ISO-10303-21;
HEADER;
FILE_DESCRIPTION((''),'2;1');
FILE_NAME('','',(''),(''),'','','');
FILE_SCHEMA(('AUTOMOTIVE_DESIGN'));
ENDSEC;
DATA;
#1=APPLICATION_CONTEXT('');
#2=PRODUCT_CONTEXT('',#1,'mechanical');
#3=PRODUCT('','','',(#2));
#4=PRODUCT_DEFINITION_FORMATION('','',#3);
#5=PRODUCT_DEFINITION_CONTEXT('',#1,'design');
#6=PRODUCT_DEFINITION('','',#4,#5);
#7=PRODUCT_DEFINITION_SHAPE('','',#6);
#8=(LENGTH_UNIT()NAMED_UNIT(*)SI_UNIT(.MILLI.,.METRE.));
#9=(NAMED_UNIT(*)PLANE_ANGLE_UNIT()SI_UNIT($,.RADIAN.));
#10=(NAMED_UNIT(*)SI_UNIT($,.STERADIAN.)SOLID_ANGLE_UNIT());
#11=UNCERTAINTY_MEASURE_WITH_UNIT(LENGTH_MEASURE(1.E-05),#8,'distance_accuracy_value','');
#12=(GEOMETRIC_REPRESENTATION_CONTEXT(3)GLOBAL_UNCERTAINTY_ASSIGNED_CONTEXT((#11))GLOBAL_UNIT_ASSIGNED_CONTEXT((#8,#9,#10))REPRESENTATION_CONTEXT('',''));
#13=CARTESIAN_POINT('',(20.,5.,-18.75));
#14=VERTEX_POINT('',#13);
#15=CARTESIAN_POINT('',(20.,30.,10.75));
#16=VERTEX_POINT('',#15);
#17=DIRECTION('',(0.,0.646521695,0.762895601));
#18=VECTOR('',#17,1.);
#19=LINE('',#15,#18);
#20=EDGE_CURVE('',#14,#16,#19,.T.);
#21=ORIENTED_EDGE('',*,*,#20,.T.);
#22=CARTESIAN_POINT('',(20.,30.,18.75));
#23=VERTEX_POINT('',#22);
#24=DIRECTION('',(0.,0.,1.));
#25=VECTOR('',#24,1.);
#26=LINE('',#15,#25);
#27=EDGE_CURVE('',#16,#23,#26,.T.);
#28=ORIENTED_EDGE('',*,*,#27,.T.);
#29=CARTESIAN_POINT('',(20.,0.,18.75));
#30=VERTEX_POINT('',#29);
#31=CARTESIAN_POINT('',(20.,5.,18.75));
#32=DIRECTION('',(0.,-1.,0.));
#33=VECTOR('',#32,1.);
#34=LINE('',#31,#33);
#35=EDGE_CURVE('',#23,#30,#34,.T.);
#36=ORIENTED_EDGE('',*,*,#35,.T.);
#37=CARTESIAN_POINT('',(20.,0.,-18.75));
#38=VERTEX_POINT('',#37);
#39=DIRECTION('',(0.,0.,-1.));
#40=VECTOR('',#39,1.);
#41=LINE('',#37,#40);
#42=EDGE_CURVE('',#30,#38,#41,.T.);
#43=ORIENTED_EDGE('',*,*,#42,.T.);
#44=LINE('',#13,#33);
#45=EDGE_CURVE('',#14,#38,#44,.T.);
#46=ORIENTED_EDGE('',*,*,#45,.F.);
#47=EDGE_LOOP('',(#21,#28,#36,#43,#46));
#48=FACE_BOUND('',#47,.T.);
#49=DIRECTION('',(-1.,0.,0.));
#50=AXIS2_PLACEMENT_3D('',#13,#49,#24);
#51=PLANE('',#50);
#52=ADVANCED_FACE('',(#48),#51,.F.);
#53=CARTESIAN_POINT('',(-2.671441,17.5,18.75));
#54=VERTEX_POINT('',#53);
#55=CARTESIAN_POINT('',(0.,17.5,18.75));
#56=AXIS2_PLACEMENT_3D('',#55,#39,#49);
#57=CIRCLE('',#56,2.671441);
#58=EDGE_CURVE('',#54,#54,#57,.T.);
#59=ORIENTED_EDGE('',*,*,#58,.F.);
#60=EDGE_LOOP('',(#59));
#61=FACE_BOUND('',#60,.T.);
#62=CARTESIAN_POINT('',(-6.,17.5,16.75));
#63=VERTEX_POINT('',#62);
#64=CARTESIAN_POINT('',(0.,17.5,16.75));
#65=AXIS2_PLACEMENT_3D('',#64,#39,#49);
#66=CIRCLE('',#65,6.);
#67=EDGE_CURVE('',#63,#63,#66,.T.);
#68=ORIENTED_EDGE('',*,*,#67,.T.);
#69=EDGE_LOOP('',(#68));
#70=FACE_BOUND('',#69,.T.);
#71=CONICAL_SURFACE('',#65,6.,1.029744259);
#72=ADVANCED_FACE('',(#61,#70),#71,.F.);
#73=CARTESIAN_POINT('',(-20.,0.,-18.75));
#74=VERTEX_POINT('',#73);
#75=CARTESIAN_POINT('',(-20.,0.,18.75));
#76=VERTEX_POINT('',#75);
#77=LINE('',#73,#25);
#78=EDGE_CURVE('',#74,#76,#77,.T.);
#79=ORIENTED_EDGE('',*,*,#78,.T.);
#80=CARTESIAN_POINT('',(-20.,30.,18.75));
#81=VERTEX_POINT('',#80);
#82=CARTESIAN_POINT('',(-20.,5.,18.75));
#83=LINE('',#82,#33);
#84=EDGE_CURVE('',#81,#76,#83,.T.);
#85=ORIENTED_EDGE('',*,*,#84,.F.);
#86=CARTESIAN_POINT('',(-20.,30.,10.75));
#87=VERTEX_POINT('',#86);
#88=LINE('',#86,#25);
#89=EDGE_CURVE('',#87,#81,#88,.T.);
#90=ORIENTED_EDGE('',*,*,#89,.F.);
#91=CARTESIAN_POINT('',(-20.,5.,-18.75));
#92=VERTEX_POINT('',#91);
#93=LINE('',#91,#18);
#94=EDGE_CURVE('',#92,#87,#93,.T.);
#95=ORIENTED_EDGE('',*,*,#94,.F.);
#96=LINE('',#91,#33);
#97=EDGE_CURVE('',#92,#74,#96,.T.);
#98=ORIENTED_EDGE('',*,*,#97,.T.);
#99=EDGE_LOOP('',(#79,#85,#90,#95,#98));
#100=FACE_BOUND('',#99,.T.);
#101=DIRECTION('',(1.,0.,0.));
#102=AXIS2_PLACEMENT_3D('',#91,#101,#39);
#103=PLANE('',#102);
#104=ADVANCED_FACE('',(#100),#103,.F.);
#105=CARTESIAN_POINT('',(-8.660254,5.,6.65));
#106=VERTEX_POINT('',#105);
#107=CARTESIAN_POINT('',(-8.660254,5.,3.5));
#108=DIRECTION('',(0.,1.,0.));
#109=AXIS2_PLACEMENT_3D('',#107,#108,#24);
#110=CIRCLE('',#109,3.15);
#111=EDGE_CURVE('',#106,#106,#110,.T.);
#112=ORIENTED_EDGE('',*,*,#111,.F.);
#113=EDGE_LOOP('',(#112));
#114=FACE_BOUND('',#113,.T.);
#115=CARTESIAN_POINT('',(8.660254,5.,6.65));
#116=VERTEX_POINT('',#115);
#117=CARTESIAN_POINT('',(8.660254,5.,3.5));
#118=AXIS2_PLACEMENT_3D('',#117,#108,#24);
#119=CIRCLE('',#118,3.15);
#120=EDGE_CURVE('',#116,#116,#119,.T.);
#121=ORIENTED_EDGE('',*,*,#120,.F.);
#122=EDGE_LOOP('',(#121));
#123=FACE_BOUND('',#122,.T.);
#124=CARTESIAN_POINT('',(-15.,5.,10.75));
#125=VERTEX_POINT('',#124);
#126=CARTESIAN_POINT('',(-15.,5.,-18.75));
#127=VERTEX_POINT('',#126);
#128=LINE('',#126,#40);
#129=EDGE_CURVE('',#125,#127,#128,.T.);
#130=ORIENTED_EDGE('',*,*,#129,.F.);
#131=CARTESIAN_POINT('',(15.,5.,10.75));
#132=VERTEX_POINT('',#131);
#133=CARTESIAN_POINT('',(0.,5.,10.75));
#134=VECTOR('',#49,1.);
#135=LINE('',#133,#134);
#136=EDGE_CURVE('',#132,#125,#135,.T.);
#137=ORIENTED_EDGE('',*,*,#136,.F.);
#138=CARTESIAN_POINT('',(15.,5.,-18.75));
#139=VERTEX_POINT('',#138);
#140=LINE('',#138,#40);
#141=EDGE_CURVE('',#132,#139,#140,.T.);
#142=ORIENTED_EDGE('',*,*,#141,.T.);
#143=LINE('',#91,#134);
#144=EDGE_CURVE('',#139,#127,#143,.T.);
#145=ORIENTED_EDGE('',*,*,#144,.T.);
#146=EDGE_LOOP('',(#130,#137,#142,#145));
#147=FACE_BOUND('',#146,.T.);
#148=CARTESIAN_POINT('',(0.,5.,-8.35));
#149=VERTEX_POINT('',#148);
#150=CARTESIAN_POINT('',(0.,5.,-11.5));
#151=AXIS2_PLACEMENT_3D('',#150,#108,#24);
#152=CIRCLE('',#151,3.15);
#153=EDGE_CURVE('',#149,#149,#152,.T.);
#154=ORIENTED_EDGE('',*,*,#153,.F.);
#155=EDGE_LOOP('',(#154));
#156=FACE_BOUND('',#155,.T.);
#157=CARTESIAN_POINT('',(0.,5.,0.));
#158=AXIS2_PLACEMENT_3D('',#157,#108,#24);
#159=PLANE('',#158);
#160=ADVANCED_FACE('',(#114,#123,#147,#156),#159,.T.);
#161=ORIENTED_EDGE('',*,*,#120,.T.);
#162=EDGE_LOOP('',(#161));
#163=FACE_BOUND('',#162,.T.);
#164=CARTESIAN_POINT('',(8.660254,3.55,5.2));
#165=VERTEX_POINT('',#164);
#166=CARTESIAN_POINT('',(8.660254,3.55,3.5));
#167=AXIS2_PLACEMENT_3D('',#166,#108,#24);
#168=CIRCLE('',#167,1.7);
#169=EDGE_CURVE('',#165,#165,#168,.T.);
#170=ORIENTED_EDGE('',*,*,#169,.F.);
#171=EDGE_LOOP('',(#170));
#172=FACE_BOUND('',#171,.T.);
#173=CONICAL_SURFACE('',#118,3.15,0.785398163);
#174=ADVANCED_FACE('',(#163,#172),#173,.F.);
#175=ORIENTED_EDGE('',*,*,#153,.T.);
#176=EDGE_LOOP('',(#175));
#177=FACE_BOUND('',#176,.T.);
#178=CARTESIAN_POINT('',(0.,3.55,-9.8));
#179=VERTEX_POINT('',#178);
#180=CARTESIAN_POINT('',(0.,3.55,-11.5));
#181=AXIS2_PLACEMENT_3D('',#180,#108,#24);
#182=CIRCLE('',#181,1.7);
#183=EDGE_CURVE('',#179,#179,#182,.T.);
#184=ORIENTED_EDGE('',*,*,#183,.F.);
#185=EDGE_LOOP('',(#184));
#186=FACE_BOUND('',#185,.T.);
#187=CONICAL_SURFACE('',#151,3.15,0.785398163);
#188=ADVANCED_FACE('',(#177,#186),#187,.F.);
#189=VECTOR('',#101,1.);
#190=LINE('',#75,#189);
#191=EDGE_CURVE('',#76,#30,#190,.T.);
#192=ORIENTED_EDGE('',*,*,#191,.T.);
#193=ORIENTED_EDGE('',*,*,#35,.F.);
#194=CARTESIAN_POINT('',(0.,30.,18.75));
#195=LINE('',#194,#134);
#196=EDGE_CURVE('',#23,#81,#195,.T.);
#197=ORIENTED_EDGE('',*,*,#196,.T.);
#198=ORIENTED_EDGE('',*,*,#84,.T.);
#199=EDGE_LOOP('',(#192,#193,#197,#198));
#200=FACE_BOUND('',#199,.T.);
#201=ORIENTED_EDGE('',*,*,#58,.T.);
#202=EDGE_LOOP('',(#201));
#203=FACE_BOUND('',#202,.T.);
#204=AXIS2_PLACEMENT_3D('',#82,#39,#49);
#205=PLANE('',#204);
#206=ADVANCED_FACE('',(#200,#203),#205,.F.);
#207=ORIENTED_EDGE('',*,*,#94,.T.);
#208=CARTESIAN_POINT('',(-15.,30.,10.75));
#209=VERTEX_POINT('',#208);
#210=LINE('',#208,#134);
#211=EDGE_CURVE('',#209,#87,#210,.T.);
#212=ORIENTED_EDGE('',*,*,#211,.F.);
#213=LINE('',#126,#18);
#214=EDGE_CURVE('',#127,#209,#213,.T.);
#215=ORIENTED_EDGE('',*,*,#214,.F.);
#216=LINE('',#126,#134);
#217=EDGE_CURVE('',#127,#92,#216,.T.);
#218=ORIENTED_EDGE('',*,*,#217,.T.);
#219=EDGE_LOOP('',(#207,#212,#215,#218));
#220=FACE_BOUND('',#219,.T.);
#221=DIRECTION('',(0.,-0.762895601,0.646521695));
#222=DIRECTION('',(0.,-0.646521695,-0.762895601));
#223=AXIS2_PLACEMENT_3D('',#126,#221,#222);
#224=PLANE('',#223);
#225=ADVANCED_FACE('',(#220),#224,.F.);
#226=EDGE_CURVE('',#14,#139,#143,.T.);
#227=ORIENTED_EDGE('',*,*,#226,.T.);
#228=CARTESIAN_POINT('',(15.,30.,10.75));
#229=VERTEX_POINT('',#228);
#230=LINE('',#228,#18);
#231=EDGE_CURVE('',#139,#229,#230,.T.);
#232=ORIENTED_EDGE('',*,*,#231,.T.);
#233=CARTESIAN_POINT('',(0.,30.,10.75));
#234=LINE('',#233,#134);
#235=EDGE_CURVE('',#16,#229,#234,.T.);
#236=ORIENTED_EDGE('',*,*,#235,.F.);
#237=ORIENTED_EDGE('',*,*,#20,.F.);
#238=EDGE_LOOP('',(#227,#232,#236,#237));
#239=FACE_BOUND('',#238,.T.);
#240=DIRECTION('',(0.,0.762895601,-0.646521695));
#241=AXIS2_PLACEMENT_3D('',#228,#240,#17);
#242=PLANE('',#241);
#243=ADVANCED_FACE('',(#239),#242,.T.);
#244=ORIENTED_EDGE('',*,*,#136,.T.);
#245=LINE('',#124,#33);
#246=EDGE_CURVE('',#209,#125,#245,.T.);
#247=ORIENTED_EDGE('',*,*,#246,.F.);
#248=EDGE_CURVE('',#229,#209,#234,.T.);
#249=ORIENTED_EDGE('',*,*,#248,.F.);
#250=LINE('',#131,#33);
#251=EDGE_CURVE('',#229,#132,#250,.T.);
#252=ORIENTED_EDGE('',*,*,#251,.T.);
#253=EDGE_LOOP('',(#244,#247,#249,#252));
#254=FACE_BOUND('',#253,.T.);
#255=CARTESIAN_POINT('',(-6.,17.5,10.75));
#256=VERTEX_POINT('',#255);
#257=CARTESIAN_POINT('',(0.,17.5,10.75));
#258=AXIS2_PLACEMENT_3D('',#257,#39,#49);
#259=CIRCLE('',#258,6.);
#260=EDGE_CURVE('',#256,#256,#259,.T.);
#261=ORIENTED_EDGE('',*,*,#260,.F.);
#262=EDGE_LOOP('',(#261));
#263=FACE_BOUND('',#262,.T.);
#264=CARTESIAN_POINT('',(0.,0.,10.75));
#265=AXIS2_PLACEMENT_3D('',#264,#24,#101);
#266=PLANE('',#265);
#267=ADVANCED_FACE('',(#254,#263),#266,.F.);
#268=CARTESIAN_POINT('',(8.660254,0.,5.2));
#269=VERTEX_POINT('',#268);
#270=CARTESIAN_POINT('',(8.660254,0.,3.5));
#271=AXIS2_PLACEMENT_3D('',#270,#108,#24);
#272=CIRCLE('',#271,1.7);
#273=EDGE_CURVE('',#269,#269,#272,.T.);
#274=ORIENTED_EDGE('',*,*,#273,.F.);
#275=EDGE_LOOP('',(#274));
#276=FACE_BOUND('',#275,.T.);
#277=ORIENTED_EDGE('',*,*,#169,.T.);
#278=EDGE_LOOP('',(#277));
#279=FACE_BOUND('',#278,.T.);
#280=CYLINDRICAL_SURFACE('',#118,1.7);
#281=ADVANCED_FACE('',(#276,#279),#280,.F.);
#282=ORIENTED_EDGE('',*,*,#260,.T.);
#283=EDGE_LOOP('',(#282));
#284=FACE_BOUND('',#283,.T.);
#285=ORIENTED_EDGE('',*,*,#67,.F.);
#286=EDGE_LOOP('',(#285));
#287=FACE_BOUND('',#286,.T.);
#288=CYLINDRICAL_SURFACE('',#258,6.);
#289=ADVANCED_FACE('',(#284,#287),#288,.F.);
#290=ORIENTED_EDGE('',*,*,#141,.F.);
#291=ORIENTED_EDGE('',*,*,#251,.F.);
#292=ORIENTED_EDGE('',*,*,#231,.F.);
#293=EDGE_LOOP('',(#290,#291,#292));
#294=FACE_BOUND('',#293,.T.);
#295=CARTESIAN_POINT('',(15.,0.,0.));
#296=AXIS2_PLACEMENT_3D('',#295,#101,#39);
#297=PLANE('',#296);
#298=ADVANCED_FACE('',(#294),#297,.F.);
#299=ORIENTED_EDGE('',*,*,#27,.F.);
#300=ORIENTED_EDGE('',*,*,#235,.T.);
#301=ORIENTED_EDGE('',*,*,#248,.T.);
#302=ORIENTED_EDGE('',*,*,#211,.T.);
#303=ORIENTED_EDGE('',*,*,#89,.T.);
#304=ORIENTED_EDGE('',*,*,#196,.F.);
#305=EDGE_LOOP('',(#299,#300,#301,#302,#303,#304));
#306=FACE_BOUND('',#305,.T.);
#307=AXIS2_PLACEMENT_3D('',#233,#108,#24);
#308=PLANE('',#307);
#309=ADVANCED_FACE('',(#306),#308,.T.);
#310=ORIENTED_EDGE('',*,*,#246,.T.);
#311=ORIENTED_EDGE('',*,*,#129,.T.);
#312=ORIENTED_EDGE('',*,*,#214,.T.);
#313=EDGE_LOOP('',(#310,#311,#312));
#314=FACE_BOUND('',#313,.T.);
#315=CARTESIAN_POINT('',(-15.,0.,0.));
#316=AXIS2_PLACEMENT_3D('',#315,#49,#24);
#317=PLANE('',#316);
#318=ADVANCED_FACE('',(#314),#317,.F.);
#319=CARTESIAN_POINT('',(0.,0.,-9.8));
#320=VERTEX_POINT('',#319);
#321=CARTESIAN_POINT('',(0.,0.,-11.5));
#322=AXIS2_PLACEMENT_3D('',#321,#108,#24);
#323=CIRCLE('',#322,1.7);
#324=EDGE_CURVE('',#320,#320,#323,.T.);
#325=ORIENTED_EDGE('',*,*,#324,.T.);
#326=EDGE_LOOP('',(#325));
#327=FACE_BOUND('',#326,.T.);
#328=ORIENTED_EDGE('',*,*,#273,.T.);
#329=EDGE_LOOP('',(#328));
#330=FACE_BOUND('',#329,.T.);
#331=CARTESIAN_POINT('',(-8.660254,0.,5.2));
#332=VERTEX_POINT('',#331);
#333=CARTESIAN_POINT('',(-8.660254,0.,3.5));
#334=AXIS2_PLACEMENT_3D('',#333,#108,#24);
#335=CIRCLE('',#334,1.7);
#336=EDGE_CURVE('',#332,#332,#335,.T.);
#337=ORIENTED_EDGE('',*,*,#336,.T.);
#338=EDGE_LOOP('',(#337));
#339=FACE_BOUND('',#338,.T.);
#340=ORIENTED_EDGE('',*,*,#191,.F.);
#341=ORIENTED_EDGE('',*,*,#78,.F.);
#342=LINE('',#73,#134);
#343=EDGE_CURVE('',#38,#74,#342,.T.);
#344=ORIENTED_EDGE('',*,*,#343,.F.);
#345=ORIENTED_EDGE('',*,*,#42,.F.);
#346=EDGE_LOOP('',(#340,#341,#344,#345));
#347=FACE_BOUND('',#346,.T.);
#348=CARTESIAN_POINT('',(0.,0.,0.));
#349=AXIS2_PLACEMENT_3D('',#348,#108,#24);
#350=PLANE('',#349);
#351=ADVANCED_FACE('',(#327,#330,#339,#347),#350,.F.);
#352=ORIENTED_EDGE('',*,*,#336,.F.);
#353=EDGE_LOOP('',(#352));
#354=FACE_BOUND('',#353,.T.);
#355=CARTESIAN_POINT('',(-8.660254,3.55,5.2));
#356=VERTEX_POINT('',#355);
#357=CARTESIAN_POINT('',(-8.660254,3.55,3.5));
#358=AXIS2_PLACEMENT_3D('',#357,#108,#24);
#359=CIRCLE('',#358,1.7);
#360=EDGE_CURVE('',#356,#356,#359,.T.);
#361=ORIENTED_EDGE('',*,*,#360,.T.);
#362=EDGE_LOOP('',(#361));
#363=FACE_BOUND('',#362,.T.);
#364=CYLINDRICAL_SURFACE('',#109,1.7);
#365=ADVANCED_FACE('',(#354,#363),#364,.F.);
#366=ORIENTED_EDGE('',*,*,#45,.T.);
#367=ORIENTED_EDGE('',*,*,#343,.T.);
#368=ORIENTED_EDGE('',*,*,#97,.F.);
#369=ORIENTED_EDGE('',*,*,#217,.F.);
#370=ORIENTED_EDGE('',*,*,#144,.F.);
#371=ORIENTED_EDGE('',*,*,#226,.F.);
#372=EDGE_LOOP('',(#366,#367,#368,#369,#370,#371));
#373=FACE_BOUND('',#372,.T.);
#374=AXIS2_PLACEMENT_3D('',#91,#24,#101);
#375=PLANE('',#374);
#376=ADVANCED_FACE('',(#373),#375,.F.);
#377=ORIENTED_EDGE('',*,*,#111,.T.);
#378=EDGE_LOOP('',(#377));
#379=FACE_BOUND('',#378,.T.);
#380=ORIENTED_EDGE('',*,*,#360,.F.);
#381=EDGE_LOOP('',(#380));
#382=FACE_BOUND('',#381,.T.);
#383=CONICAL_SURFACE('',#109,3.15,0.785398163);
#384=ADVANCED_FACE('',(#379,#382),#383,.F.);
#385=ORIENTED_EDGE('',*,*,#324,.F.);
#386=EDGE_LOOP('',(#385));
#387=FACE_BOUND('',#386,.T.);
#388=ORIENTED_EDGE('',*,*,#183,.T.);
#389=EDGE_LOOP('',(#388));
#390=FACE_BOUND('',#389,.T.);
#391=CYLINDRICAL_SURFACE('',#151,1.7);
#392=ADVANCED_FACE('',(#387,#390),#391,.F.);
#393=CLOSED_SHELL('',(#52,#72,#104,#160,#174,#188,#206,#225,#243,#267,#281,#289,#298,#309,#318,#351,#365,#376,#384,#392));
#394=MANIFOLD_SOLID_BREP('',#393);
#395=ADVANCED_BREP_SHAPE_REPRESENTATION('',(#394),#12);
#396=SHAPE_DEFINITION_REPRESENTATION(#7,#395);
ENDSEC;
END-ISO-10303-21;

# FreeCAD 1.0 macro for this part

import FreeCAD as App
import Part
import Sketcher

doc = App.newDocument("Part")
body = doc.addObject("PartDesign::Body", "Body")

sketch1 = body.newObject("Sketcher::SketchObject", "Sketch")
sketch1.AttachmentSupport = (doc.getObject("XZ_Plane"), [""])
sketch1.MapMode = "FlatFace"
sketch1.addGeometry(Part.LineSegment(App.Vector(-20, -19, 0), App.Vector(-20, 19, 0)), False)
sketch1.addGeometry(Part.LineSegment(App.Vector(-20, 19, 0), App.Vector(20, 19, 0)), False)
sketch1.addGeometry(Part.LineSegment(App.Vector(20, 19, 0), App.Vector(20, -19, 0)), False)
sketch1.addGeometry(Part.LineSegment(App.Vector(20, -19, 0), App.Vector(-20, -19, 0)), False)
sketch1.addConstraint(Sketcher.Constraint("Coincident", 0, 2, 1, 1))
sketch1.addConstraint(Sketcher.Constraint("Coincident", 1, 2, 2, 1))
sketch1.addConstraint(Sketcher.Constraint("Coincident", 2, 2, 3, 1))
sketch1.addConstraint(Sketcher.Constraint("Coincident", 3, 2, 0, 1))
sketch1.addConstraint(Sketcher.Constraint("Vertical", 0))
sketch1.addConstraint(Sketcher.Constraint("Horizontal", 1))
sketch1.addConstraint(Sketcher.Constraint("Vertical", 2))
sketch1.addConstraint(Sketcher.Constraint("Horizontal", 3))
sketch1.addConstraint(Sketcher.Constraint("Symmetric", 0, 2, 2, 2, -1, 1))
sketch1.addConstraint(Sketcher.Constraint("DistanceX", 1, 1, 1, 2, 40.0))
sketch1.addConstraint(Sketcher.Constraint("DistanceY", 0, 1, 0, 2, 37.5))
pad1 = body.newObject("PartDesign::Pad", "Pad")
pad1.Profile = sketch1
pad1.Length = 5
pad1.Reversed = True

sketch2 = body.newObject("Sketcher::SketchObject", "Sketch001")
sketch2.AttachmentSupport = (doc.getObject("XY_Plane"), [""])
sketch2.MapMode = "FlatFace"
sketch2.AttachmentOffset = App.Placement(App.Vector(0, 0, 18.75), App.Rotation())
sketch2.addGeometry(Part.LineSegment(App.Vector(-20, 30, 0), App.Vector(-20, 0, 0)), False)
sketch2.addGeometry(Part.LineSegment(App.Vector(-20, 0, 0), App.Vector(20, 0, 0)), False)
sketch2.addGeometry(Part.LineSegment(App.Vector(20, 0, 0), App.Vector(20, 30, 0)), False)
sketch2.addGeometry(Part.LineSegment(App.Vector(20, 30, 0), App.Vector(-20, 30, 0)), False)
sketch2.addConstraint(Sketcher.Constraint("Coincident", 0, 2, 1, 1))
sketch2.addConstraint(Sketcher.Constraint("Coincident", 1, 2, 2, 1))
sketch2.addConstraint(Sketcher.Constraint("Coincident", 2, 2, 3, 1))
sketch2.addConstraint(Sketcher.Constraint("Coincident", 3, 2, 0, 1))
sketch2.addConstraint(Sketcher.Constraint("Vertical", 0))
sketch2.addConstraint(Sketcher.Constraint("Horizontal", 1))
sketch2.addConstraint(Sketcher.Constraint("Vertical", 2))
sketch2.addConstraint(Sketcher.Constraint("Horizontal", 3))
sketch2.addConstraint(Sketcher.Constraint("Symmetric", 0, 2, 1, 2, -1, 1))
sketch2.addConstraint(Sketcher.Constraint("DistanceX", 1, 1, 1, 2, 40.0))
sketch2.addConstraint(Sketcher.Constraint("DistanceY", 0, 2, 0, 1, 30.0))
pad2 = body.newObject("PartDesign::Pad", "Pad001")
pad2.Profile = sketch2
pad2.Length = 8
pad2.Reversed = True

sketch3 = body.newObject("Sketcher::SketchObject", "Sketch002")
sketch3.AttachmentSupport = (doc.getObject("YZ_Plane"), [""])
sketch3.MapMode = "FlatFace"
sketch3.AttachmentOffset = App.Placement(App.Vector(0, 0, 20), App.Rotation())
sketch3.addGeometry(Part.LineSegment(App.Vector(5, -19, 0), App.Vector(30, 11, 0)), False)
sketch3.addGeometry(Part.LineSegment(App.Vector(30, 11, 0), App.Vector(5, 11, 0)), False)
sketch3.addGeometry(Part.LineSegment(App.Vector(5, 11, 0), App.Vector(5, -19, 0)), False)
sketch3.addConstraint(Sketcher.Constraint("Coincident", 0, 2, 1, 1))
sketch3.addConstraint(Sketcher.Constraint("Coincident", 1, 2, 2, 1))
sketch3.addConstraint(Sketcher.Constraint("Coincident", 2, 2, 0, 1))
sketch3.addConstraint(Sketcher.Constraint("Horizontal", 1))
sketch3.addConstraint(Sketcher.Constraint("Vertical", 2))
sketch3.addConstraint(Sketcher.Constraint("DistanceX", 1, 2, 1, 1, 25.0))
sketch3.addConstraint(Sketcher.Constraint("DistanceY", 2, 2, 2, 1, 29.5))
sketch3.addConstraint(Sketcher.Constraint("DistanceX", -1, 1, 0, 2, 30.0))
sketch3.addConstraint(Sketcher.Constraint("DistanceY", -1, 1, 0, 2, 10.75))
pad3 = body.newObject("PartDesign::Pad", "Pad002")
pad3.Profile = sketch3
pad3.Length = 5
pad3.Reversed = True

sketch4 = body.newObject("Sketcher::SketchObject", "Sketch003")
sketch4.AttachmentSupport = (doc.getObject("YZ_Plane"), [""])
sketch4.MapMode = "FlatFace"
sketch4.AttachmentOffset = App.Placement(App.Vector(0, 0, -20), App.Rotation())
sketch4.addGeometry(Part.LineSegment(App.Vector(5, -19, 0), App.Vector(30, 11, 0)), False)
sketch4.addGeometry(Part.LineSegment(App.Vector(30, 11, 0), App.Vector(5, 11, 0)), False)
sketch4.addGeometry(Part.LineSegment(App.Vector(5, 11, 0), App.Vector(5, -19, 0)), False)
sketch4.addConstraint(Sketcher.Constraint("Coincident", 0, 2, 1, 1))
sketch4.addConstraint(Sketcher.Constraint("Coincident", 1, 2, 2, 1))
sketch4.addConstraint(Sketcher.Constraint("Coincident", 2, 2, 0, 1))
sketch4.addConstraint(Sketcher.Constraint("Horizontal", 1))
sketch4.addConstraint(Sketcher.Constraint("Vertical", 2))
sketch4.addConstraint(Sketcher.Constraint("DistanceX", 1, 2, 1, 1, 25.0))
sketch4.addConstraint(Sketcher.Constraint("DistanceY", 2, 2, 2, 1, 29.5))
sketch4.addConstraint(Sketcher.Constraint("DistanceX", -1, 1, 0, 2, 30.0))
sketch4.addConstraint(Sketcher.Constraint("DistanceY", -1, 1, 0, 2, 10.75))
pad4 = body.newObject("PartDesign::Pad", "Pad003")
pad4.Profile = sketch4
pad4.Length = 5

sketch5 = body.newObject("Sketcher::SketchObject", "Sketch004")
sketch5.AttachmentSupport = (doc.getObject("XZ_Plane"), [""])
sketch5.MapMode = "FlatFace"
sketch5.AttachmentOffset = App.Placement(App.Vector(0, 0, -5), App.Rotation())
sketch5.addGeometry(Part.Circle(App.Vector(8.7, 3.5, 0), App.Vector(0, 0, 1), 1.7), False)
sketch5.addGeometry(Part.Circle(App.Vector(0, -11.5, 0), App.Vector(0, 0, 1), 1.7), False)
sketch5.addGeometry(Part.Circle(App.Vector(-8.7, 3.5, 0), App.Vector(0, 0, 1), 1.7), False)
sketch5.addConstraint(Sketcher.Constraint("Equal", 0, 1))
sketch5.addConstraint(Sketcher.Constraint("Equal", 1, 2))
sketch5.addConstraint(Sketcher.Constraint("Symmetric", 0, 3, 2, 3, -2))
sketch5.addConstraint(Sketcher.Constraint("PointOnObject", 1, 3, -2))
sketch5.addConstraint(Sketcher.Constraint("Diameter", 0, 3.4))
sketch5.addConstraint(Sketcher.Constraint("DistanceY", 1, 3, 0, 3, 15.0))
sketch5.addConstraint(Sketcher.Constraint("DistanceY", -1, 1, 0, 3, 3.5))
sketch5.addConstraint(Sketcher.Constraint("DistanceX", 2, 3, 0, 3, 17.320508))
doc.recompute()
hole = body.newObject("PartDesign::Hole", "Hole")
hole.Profile = sketch5
hole.ThreadType = "None"
hole.Diameter = 3.4
hole.DepthType = "Dimension"
hole.Depth = 6
hole.DrillPoint = "Angled"
hole.DrillPointAngle = 118
hole.HoleCutType = "Countersink"
hole.HoleCutDiameter = 6.3
hole.HoleCutCountersinkAngle = 90
hole.Reversed = True

sketch6 = body.newObject("Sketcher::SketchObject", "Sketch005")
sketch6.AttachmentSupport = (doc.getObject("XY_Plane"), [""])
sketch6.MapMode = "FlatFace"
sketch6.AttachmentOffset = App.Placement(App.Vector(0, 0, 10.75), App.Rotation())
sketch6.addGeometry(Part.Circle(App.Vector(0, 18, 0), App.Vector(0, 0, 1), 6), False)
sketch6.addConstraint(Sketcher.Constraint("PointOnObject", 0, 3, -2))
sketch6.addConstraint(Sketcher.Constraint("Diameter", 0, 12.0))
sketch6.addConstraint(Sketcher.Constraint("DistanceY", -1, 1, 0, 3, 17.5))
doc.recompute()
hole2 = body.newObject("PartDesign::Hole", "Hole001")
hole2.Profile = sketch6
hole2.ThreadType = "None"
hole2.Diameter = 12
hole2.DepthType = "Dimension"
hole2.Depth = 6
hole2.DrillPoint = "Angled"
hole2.DrillPointAngle = 118
hole2.Reversed = True

doc.recompute()
